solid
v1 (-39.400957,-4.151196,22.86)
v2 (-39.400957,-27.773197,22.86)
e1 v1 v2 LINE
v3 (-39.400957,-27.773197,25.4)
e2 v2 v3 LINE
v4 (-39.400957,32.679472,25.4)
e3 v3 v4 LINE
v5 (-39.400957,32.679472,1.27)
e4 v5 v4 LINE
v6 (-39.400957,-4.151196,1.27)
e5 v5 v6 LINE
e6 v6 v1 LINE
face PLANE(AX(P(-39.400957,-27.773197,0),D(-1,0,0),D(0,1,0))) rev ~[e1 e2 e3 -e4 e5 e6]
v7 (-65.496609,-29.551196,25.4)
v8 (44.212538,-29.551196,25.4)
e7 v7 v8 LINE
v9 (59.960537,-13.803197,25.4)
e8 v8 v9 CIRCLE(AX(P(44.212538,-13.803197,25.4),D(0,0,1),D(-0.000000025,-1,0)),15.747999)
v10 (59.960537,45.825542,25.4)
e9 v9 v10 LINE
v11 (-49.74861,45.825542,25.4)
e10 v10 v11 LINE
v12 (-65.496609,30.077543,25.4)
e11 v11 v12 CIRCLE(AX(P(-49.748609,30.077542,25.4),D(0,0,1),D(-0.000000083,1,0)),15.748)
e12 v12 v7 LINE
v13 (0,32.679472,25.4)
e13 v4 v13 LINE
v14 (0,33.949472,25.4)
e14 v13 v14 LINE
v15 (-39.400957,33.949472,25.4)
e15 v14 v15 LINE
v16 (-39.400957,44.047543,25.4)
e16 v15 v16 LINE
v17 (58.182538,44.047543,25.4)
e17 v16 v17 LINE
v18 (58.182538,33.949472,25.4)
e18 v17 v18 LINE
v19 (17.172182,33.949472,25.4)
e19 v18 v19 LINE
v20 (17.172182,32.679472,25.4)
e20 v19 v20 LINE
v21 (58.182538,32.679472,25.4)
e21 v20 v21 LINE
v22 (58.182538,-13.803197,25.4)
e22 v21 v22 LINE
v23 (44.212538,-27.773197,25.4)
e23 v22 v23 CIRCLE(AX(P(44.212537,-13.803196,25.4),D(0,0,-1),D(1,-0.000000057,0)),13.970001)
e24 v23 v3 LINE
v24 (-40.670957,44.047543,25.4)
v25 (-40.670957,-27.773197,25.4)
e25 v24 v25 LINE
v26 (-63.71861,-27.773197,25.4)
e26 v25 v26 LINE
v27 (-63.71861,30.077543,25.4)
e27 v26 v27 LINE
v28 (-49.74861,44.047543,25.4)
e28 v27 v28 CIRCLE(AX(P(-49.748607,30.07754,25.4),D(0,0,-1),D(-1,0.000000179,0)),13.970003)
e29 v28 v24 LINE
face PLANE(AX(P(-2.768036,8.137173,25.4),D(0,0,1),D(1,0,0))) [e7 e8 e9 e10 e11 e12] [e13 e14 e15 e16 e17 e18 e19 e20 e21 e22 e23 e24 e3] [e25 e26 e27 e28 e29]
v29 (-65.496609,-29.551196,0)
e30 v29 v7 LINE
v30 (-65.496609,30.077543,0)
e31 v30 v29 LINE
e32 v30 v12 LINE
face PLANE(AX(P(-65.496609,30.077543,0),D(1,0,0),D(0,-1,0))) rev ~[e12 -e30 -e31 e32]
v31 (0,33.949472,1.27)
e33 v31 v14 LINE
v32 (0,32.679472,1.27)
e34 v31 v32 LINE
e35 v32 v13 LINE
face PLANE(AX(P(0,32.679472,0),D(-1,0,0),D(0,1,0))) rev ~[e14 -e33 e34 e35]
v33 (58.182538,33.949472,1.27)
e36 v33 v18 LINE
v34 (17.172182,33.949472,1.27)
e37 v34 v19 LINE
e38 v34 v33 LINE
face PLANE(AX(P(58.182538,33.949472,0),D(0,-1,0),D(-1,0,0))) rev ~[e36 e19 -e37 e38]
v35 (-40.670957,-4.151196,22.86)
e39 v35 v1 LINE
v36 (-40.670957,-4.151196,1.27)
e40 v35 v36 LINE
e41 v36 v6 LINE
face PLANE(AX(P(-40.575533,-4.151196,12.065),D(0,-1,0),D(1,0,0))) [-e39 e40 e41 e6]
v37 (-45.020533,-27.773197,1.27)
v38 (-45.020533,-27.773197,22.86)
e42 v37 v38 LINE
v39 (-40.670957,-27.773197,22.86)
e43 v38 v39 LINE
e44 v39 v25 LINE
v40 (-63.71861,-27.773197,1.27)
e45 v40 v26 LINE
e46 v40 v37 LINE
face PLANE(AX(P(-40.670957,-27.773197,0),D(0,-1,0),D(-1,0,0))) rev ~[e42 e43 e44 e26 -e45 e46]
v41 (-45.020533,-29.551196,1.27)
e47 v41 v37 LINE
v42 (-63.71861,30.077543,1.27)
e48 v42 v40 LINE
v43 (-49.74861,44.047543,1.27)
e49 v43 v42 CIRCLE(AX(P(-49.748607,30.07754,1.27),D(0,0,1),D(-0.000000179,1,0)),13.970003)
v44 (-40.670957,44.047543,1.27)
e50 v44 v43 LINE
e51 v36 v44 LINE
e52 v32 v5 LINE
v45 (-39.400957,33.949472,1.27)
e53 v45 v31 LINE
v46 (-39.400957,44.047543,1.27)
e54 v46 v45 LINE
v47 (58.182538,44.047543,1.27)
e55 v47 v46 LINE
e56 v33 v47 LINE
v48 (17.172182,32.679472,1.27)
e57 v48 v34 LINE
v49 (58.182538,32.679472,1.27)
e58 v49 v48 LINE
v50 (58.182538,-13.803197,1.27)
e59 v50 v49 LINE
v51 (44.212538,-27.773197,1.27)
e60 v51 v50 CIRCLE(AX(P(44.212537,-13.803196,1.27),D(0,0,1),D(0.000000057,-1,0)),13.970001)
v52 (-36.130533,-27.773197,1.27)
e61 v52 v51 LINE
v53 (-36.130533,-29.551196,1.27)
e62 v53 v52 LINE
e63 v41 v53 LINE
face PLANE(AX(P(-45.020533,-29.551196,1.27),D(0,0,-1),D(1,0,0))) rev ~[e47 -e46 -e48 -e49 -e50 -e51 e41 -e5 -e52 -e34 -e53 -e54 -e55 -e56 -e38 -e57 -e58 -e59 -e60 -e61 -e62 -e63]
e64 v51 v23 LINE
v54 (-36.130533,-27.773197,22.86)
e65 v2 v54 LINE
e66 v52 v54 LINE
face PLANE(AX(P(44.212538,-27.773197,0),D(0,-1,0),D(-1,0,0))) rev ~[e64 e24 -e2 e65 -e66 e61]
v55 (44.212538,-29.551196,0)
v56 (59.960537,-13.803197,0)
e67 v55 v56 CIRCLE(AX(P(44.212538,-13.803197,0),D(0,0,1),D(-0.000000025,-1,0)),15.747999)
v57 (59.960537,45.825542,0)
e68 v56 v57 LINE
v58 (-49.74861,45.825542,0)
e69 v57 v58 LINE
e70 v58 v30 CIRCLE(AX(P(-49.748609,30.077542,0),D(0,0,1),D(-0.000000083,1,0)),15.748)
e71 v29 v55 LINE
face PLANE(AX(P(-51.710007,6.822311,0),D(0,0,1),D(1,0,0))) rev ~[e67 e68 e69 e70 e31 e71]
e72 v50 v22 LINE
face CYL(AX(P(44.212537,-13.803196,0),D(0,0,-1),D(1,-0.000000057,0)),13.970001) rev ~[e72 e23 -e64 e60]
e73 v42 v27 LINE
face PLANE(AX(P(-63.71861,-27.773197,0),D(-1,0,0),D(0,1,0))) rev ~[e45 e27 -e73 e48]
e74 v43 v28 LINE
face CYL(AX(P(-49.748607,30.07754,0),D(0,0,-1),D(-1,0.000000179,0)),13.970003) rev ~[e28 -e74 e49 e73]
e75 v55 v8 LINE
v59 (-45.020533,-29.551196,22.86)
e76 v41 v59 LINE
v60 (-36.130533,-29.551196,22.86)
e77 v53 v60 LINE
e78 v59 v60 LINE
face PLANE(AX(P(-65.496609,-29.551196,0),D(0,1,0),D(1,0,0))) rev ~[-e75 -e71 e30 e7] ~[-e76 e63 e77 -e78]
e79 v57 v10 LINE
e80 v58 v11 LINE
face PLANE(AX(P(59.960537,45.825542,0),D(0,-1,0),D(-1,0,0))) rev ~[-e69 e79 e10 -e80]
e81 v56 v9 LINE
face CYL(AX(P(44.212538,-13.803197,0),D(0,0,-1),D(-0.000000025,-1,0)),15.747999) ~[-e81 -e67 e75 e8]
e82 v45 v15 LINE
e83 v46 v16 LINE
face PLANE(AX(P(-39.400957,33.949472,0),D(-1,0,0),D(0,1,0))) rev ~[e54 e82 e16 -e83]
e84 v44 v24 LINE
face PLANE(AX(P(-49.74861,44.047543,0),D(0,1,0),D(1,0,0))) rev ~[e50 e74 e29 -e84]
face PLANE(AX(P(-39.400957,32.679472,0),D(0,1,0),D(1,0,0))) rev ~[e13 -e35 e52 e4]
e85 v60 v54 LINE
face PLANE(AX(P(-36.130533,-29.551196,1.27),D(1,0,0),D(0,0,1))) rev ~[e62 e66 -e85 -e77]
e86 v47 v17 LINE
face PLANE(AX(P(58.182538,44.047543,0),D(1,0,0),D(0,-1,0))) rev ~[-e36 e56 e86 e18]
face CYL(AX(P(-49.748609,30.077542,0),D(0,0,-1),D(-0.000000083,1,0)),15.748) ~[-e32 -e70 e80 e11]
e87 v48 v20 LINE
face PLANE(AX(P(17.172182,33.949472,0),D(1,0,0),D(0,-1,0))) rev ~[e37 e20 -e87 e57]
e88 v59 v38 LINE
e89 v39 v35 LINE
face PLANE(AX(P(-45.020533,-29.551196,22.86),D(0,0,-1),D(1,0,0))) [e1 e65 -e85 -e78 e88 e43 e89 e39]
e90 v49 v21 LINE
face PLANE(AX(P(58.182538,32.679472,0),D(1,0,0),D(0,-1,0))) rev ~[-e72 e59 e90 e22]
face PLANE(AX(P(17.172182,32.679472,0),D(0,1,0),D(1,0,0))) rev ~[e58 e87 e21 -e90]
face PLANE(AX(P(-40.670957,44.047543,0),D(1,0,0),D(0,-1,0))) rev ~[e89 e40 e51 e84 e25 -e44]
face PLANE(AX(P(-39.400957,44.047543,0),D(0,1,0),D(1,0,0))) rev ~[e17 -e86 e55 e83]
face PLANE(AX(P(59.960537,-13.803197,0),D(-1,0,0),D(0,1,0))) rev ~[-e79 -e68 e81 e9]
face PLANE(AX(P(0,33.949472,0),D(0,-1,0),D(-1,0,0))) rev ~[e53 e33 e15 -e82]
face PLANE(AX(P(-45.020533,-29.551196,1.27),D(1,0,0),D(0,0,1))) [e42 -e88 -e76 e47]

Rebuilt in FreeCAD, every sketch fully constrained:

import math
import FreeCAD as App
import Part
import Sketcher
Q = App.Units.Quantity


def add_polygon(sketch, points):
    """Adds a closed chain of lines whose ends are joined by coincident constraints."""
    first, n = sketch.GeometryCount, len(points)
    for a, b in zip(points, points[1:] + points[:1]):
        sketch.addGeometry(Part.LineSegment(App.Vector(*a, 0), App.Vector(*b, 0)), False)
    for i in range(n):
        sketch.addConstraint(Sketcher.Constraint("Coincident", first + i, 2, first + (i + 1) % n, 1))

doc = App.newDocument("Part")
body = doc.addObject("PartDesign::Body", "Body")

sketch1 = body.newObject("Sketcher::SketchObject", "Sketch")
sketch1.AttachmentSupport = (doc.getObject("XY_Plane"), [""])
sketch1.MapMode = "FlatFace"
sketch1.addGeometry(Part.LineSegment(App.Vector(60, 45.8, 0), App.Vector(-49.7, 45.8, 0)), False)
sketch1.addGeometry(Part.ArcOfCircle(Part.Circle(App.Vector(-49.7, 30.1, 0), App.Vector(0, 0, 1), 15.7), math.radians(90), math.radians(180)), False)
sketch1.addGeometry(Part.LineSegment(App.Vector(-65.5, 30.1, 0), App.Vector(-65.5, -29.6, 0)), False)
sketch1.addGeometry(Part.LineSegment(App.Vector(-65.5, -29.6, 0), App.Vector(44.2, -29.6, 0)), False)
sketch1.addGeometry(Part.ArcOfCircle(Part.Circle(App.Vector(44.2, -13.8, 0), App.Vector(0, 0, 1), 15.7), math.radians(-90), math.radians(0)), False)
sketch1.addGeometry(Part.LineSegment(App.Vector(60, -13.8, 0), App.Vector(60, 45.8, 0)), False)
sketch1.addGeometry(Part.LineSegment(App.Vector(-63.7, -27.8, 0), App.Vector(-63.7, 30.1, 0)), False)
sketch1.addGeometry(Part.ArcOfCircle(Part.Circle(App.Vector(-49.7, 30.1, 0), App.Vector(0, 0, 1), 14), math.radians(90), math.radians(180)), False)
sketch1.addGeometry(Part.LineSegment(App.Vector(-49.7, 44, 0), App.Vector(-40.7, 44, 0)), False)
sketch1.addGeometry(Part.LineSegment(App.Vector(-40.7, 44, 0), App.Vector(-40.7, -27.8, 0)), False)
sketch1.addGeometry(Part.LineSegment(App.Vector(-40.7, -27.8, 0), App.Vector(-63.7, -27.8, 0)), False)
sketch1.addGeometry(Part.LineSegment(App.Vector(-39.4, 33.9, 0), App.Vector(-39.4, 44, 0)), False)
sketch1.addGeometry(Part.LineSegment(App.Vector(-39.4, 44, 0), App.Vector(58.2, 44, 0)), False)
sketch1.addGeometry(Part.LineSegment(App.Vector(58.2, 44, 0), App.Vector(58.2, 33.9, 0)), False)
sketch1.addGeometry(Part.LineSegment(App.Vector(58.2, 33.9, 0), App.Vector(17.2, 33.9, 0)), False)
sketch1.addGeometry(Part.LineSegment(App.Vector(17.2, 33.9, 0), App.Vector(17.2, 32.7, 0)), False)
sketch1.addGeometry(Part.LineSegment(App.Vector(17.2, 32.7, 0), App.Vector(58.2, 32.7, 0)), False)
sketch1.addGeometry(Part.LineSegment(App.Vector(58.2, 32.7, 0), App.Vector(58.2, -13.8, 0)), False)
sketch1.addGeometry(Part.ArcOfCircle(Part.Circle(App.Vector(44.2, -13.8, 0), App.Vector(0, 0, 1), 14), math.radians(-90), math.radians(0)), False)
sketch1.addGeometry(Part.LineSegment(App.Vector(44.2, -27.8, 0), App.Vector(-39.4, -27.8, 0)), False)
sketch1.addGeometry(Part.LineSegment(App.Vector(-39.4, -27.8, 0), App.Vector(-39.4, 32.7, 0)), False)
sketch1.addGeometry(Part.LineSegment(App.Vector(-39.4, 32.7, 0), App.Vector(0, 32.7, 0)), False)
sketch1.addGeometry(Part.LineSegment(App.Vector(0, 32.7, 0), App.Vector(0, 33.9, 0)), False)
sketch1.addGeometry(Part.LineSegment(App.Vector(0, 33.9, 0), App.Vector(-39.4, 33.9, 0)), False)
sketch1.addConstraint(Sketcher.Constraint("Tangent", 0, 2, 1, 1))
sketch1.addConstraint(Sketcher.Constraint("Tangent", 1, 2, 2, 1))
sketch1.addConstraint(Sketcher.Constraint("Coincident", 2, 2, 3, 1))
sketch1.addConstraint(Sketcher.Constraint("Tangent", 3, 2, 4, 1))
sketch1.addConstraint(Sketcher.Constraint("Tangent", 4, 2, 5, 1))
sketch1.addConstraint(Sketcher.Constraint("Coincident", 5, 2, 0, 1))
sketch1.addConstraint(Sketcher.Constraint("Tangent", 6, 2, 7, 2))
sketch1.addConstraint(Sketcher.Constraint("Tangent", 7, 1, 8, 1))
sketch1.addConstraint(Sketcher.Constraint("Coincident", 8, 2, 9, 1))
sketch1.addConstraint(Sketcher.Constraint("Coincident", 9, 2, 10, 1))
sketch1.addConstraint(Sketcher.Constraint("Coincident", 10, 2, 6, 1))
sketch1.addConstraint(Sketcher.Constraint("Coincident", 11, 2, 12, 1))
sketch1.addConstraint(Sketcher.Constraint("Coincident", 12, 2, 13, 1))
sketch1.addConstraint(Sketcher.Constraint("Coincident", 13, 2, 14, 1))
sketch1.addConstraint(Sketcher.Constraint("Coincident", 14, 2, 15, 1))
sketch1.addConstraint(Sketcher.Constraint("Coincident", 15, 2, 16, 1))
sketch1.addConstraint(Sketcher.Constraint("Coincident", 16, 2, 17, 1))
sketch1.addConstraint(Sketcher.Constraint("Tangent", 17, 2, 18, 2))
sketch1.addConstraint(Sketcher.Constraint("Tangent", 18, 1, 19, 1))
sketch1.addConstraint(Sketcher.Constraint("Coincident", 19, 2, 20, 1))
sketch1.addConstraint(Sketcher.Constraint("Coincident", 20, 2, 21, 1))
sketch1.addConstraint(Sketcher.Constraint("Coincident", 21, 2, 22, 1))
sketch1.addConstraint(Sketcher.Constraint("Coincident", 22, 2, 23, 1))
sketch1.addConstraint(Sketcher.Constraint("Coincident", 23, 2, 11, 1))
sketch1.addConstraint(Sketcher.Constraint("Horizontal", 0))
sketch1.addConstraint(Sketcher.Constraint("Vertical", 2))
sketch1.addConstraint(Sketcher.Constraint("Horizontal", 3))
sketch1.addConstraint(Sketcher.Constraint("Vertical", 5))
sketch1.addConstraint(Sketcher.Constraint("Vertical", 6))
sketch1.addConstraint(Sketcher.Constraint("Horizontal", 8))
sketch1.addConstraint(Sketcher.Constraint("Vertical", 9))
sketch1.addConstraint(Sketcher.Constraint("Horizontal", 10))
sketch1.addConstraint(Sketcher.Constraint("Vertical", 11))
sketch1.addConstraint(Sketcher.Constraint("Horizontal", 12))
sketch1.addConstraint(Sketcher.Constraint("Vertical", 13))
sketch1.addConstraint(Sketcher.Constraint("Horizontal", 14))
sketch1.addConstraint(Sketcher.Constraint("Vertical", 15))
sketch1.addConstraint(Sketcher.Constraint("Horizontal", 16))
sketch1.addConstraint(Sketcher.Constraint("Vertical", 17))
sketch1.addConstraint(Sketcher.Constraint("Horizontal", 19))
sketch1.addConstraint(Sketcher.Constraint("Vertical", 20))
sketch1.addConstraint(Sketcher.Constraint("Horizontal", 21))
sketch1.addConstraint(Sketcher.Constraint("Vertical", 22))
sketch1.addConstraint(Sketcher.Constraint("Horizontal", 23))
sketch1.addConstraint(Sketcher.Constraint("Coincident", 7, 3, 1, 3))
sketch1.addConstraint(Sketcher.Constraint("Coincident", 18, 3, 4, 3))
sketch1.addConstraint(Sketcher.Constraint("Equal", 1, 4))
sketch1.addConstraint(Sketcher.Constraint("Equal", 7, 18))
sketch1.addConstraint(Sketcher.Constraint("PointOnObject", 21, 2, -2))
sketch1.addConstraint(Sketcher.Constraint("Horizontal", 8, 2, 11, 2))
sketch1.addConstraint(Sketcher.Constraint("Horizontal", 10, 2, 18, 1))
sketch1.addConstraint(Sketcher.Constraint("Horizontal", 16, 2, 20, 2))
sketch1.addConstraint(Sketcher.Constraint("Horizontal", 14, 2, 22, 2))
sketch1.addConstraint(Sketcher.Constraint("Vertical", 13, 2, 16, 2))
sketch1.addConstraint(Sketcher.Constraint("Vertical", 11, 2, 19, 2))
sketch1.addConstraint(Sketcher.Constraint("Radius", 1, Q("0.62 in")))
sketch1.addConstraint(Sketcher.Constraint("Radius", 7, Q("0.5500001 in")))
sketch1.addConstraint(Sketcher.Constraint("DistanceY", 15, 2, 15, 1, Q("0.05 in")))
sketch1.addConstraint(Sketcher.Constraint("DistanceX", 8, 2, 11, 2, Q("0.05 in")))
sketch1.addConstraint(Sketcher.Constraint("DistanceY", 2, 2, 2, 1, 59.628739))
sketch1.addConstraint(Sketcher.Constraint("DistanceY", 11, 1, 11, 2, 10.098071))
sketch1.addConstraint(Sketcher.Constraint("DistanceX", 0, 2, 0, 1, 109.709147))
sketch1.addConstraint(Sketcher.Constraint("DistanceX", 8, 1, 8, 2, 9.077653))
sketch1.addConstraint(Sketcher.Constraint("DistanceX", 14, 2, 14, 1, 41.010356))
sketch1.addConstraint(Sketcher.Constraint("DistanceX", 21, 1, 21, 2, 39.400957))
sketch1.addConstraint(Sketcher.Constraint("DistanceY", -1, 1, 1, 3, 30.077542))
pad1 = body.newObject("PartDesign::Pad", "Pad")
pad1.Profile = sketch1
pad1.Length = Q("1 in")

sketch2 = body.newObject("Sketcher::SketchObject", "Sketch001")
sketch2.AttachmentSupport = (doc.getObject("XY_Plane"), [""])
sketch2.MapMode = "FlatFace"
sketch2.addGeometry(Part.LineSegment(App.Vector(-40.7, 44, 0), App.Vector(-49.7, 44, 0)), False)
sketch2.addGeometry(Part.ArcOfCircle(Part.Circle(App.Vector(-49.7, 30.1, 0), App.Vector(0, 0, 1), 14), math.radians(90), math.radians(180)), False)
sketch2.addGeometry(Part.LineSegment(App.Vector(-63.7, 30.1, 0), App.Vector(-63.7, -27.8, 0)), False)
sketch2.addGeometry(Part.LineSegment(App.Vector(-63.7, -27.8, 0), App.Vector(-40.7, -27.8, 0)), False)
sketch2.addGeometry(Part.LineSegment(App.Vector(-40.7, -27.8, 0), App.Vector(-40.7, 44, 0)), False)
sketch2.addGeometry(Part.LineSegment(App.Vector(58.2, 33.9, 0), App.Vector(58.2, 44, 0)), False)
sketch2.addGeometry(Part.LineSegment(App.Vector(58.2, 44, 0), App.Vector(-39.4, 44, 0)), False)
sketch2.addGeometry(Part.LineSegment(App.Vector(-39.4, 44, 0), App.Vector(-39.4, 33.9, 0)), False)
sketch2.addGeometry(Part.LineSegment(App.Vector(-39.4, 33.9, 0), App.Vector(0, 33.9, 0)), False)
sketch2.addGeometry(Part.LineSegment(App.Vector(0, 33.9, 0), App.Vector(0, 32.7, 0)), False)
sketch2.addGeometry(Part.LineSegment(App.Vector(0, 32.7, 0), App.Vector(-39.4, 32.7, 0)), False)
sketch2.addGeometry(Part.LineSegment(App.Vector(-39.4, 32.7, 0), App.Vector(-39.4, -27.8, 0)), False)
sketch2.addGeometry(Part.LineSegment(App.Vector(-39.4, -27.8, 0), App.Vector(44.2, -27.8, 0)), False)
sketch2.addGeometry(Part.ArcOfCircle(Part.Circle(App.Vector(44.2, -13.8, 0), App.Vector(0, 0, 1), 14), math.radians(-90), math.radians(0)), False)
sketch2.addGeometry(Part.LineSegment(App.Vector(58.2, -13.8, 0), App.Vector(58.2, 32.7, 0)), False)
sketch2.addGeometry(Part.LineSegment(App.Vector(58.2, 32.7, 0), App.Vector(17.2, 32.7, 0)), False)
sketch2.addGeometry(Part.LineSegment(App.Vector(17.2, 32.7, 0), App.Vector(17.2, 33.9, 0)), False)
sketch2.addGeometry(Part.LineSegment(App.Vector(17.2, 33.9, 0), App.Vector(58.2, 33.9, 0)), False)
sketch2.addConstraint(Sketcher.Constraint("Tangent", 0, 2, 1, 1))
sketch2.addConstraint(Sketcher.Constraint("Tangent", 1, 2, 2, 1))
sketch2.addConstraint(Sketcher.Constraint("Coincident", 2, 2, 3, 1))
sketch2.addConstraint(Sketcher.Constraint("Coincident", 3, 2, 4, 1))
sketch2.addConstraint(Sketcher.Constraint("Coincident", 4, 2, 0, 1))
sketch2.addConstraint(Sketcher.Constraint("Coincident", 5, 2, 6, 1))
sketch2.addConstraint(Sketcher.Constraint("Coincident", 6, 2, 7, 1))
sketch2.addConstraint(Sketcher.Constraint("Coincident", 7, 2, 8, 1))
sketch2.addConstraint(Sketcher.Constraint("Coincident", 8, 2, 9, 1))
sketch2.addConstraint(Sketcher.Constraint("Coincident", 9, 2, 10, 1))
sketch2.addConstraint(Sketcher.Constraint("Coincident", 10, 2, 11, 1))
sketch2.addConstraint(Sketcher.Constraint("Coincident", 11, 2, 12, 1))
sketch2.addConstraint(Sketcher.Constraint("Tangent", 12, 2, 13, 1))
sketch2.addConstraint(Sketcher.Constraint("Tangent", 13, 2, 14, 1))
sketch2.addConstraint(Sketcher.Constraint("Coincident", 14, 2, 15, 1))
sketch2.addConstraint(Sketcher.Constraint("Coincident", 15, 2, 16, 1))
sketch2.addConstraint(Sketcher.Constraint("Coincident", 16, 2, 17, 1))
sketch2.addConstraint(Sketcher.Constraint("Coincident", 17, 2, 5, 1))
sketch2.addConstraint(Sketcher.Constraint("Horizontal", 0))
sketch2.addConstraint(Sketcher.Constraint("Vertical", 2))
sketch2.addConstraint(Sketcher.Constraint("Horizontal", 3))
sketch2.addConstraint(Sketcher.Constraint("Vertical", 4))
sketch2.addConstraint(Sketcher.Constraint("Vertical", 5))
sketch2.addConstraint(Sketcher.Constraint("Horizontal", 6))
sketch2.addConstraint(Sketcher.Constraint("Vertical", 7))
sketch2.addConstraint(Sketcher.Constraint("Horizontal", 8))
sketch2.addConstraint(Sketcher.Constraint("Vertical", 9))
sketch2.addConstraint(Sketcher.Constraint("Horizontal", 10))
sketch2.addConstraint(Sketcher.Constraint("Vertical", 11))
sketch2.addConstraint(Sketcher.Constraint("Horizontal", 12))
sketch2.addConstraint(Sketcher.Constraint("Vertical", 14))
sketch2.addConstraint(Sketcher.Constraint("Horizontal", 15))
sketch2.addConstraint(Sketcher.Constraint("Vertical", 16))
sketch2.addConstraint(Sketcher.Constraint("Horizontal", 17))
sketch2.addConstraint(Sketcher.Constraint("Equal", 1, 13))
sketch2.addConstraint(Sketcher.Constraint("PointOnObject", 8, 2, -2))
sketch2.addConstraint(Sketcher.Constraint("Horizontal", 4, 2, 5, 2))
sketch2.addConstraint(Sketcher.Constraint("Horizontal", 3, 2, 11, 2))
sketch2.addConstraint(Sketcher.Constraint("Horizontal", 10, 2, 14, 2))
sketch2.addConstraint(Sketcher.Constraint("Horizontal", 8, 2, 16, 2))
sketch2.addConstraint(Sketcher.Constraint("Vertical", 7, 2, 10, 2))
sketch2.addConstraint(Sketcher.Constraint("Vertical", 5, 2, 13, 2))
sketch2.addConstraint(Sketcher.Constraint("Radius", 1, Q("0.5500001 in")))
sketch2.addConstraint(Sketcher.Constraint("DistanceY", 9, 2, 9, 1, Q("0.05 in")))
sketch2.addConstraint(Sketcher.Constraint("DistanceX", 4, 2, 6, 2, Q("0.05 in")))
sketch2.addConstraint(Sketcher.Constraint("DistanceY", 2, 2, 2, 1, 57.85074))
sketch2.addConstraint(Sketcher.Constraint("DistanceY", 5, 1, 5, 2, 10.098071))
sketch2.addConstraint(Sketcher.Constraint("DistanceX", 0, 2, 0, 1, 9.077653))
sketch2.addConstraint(Sketcher.Constraint("DistanceX", 6, 2, 6, 1, 97.583495))
sketch2.addConstraint(Sketcher.Constraint("DistanceX", 8, 1, 8, 2, 39.400957))
sketch2.addConstraint(Sketcher.Constraint("DistanceX", 15, 2, 15, 1, 41.010356))
sketch2.addConstraint(Sketcher.Constraint("DistanceY", -1, 1, 1, 3, 30.07754))
pad2 = body.newObject("PartDesign::Pad", "Pad001")
pad2.Profile = sketch2
pad2.Length = Q("0.05 in")

sketch3 = body.newObject("Sketcher::SketchObject", "Sketch002")
sketch3.AttachmentSupport = (doc.getObject("XZ_Plane"), [""])
sketch3.MapMode = "FlatFace"
sketch3.AttachmentOffset = App.Placement(App.Vector(0, 0, 29.551196), App.Rotation())
add_polygon(sketch3, [(-45, 23), (-45, 1), (-36, 1), (-36, 23)])
sketch3.addConstraint(Sketcher.Constraint("Vertical", 0))
sketch3.addConstraint(Sketcher.Constraint("Horizontal", 1))
sketch3.addConstraint(Sketcher.Constraint("Vertical", 2))
sketch3.addConstraint(Sketcher.Constraint("Horizontal", 3))
sketch3.addConstraint(Sketcher.Constraint("DistanceX", 1, 1, 1, 2, Q("0.35 in")))
sketch3.addConstraint(Sketcher.Constraint("DistanceY", 0, 2, 0, 1, Q("0.85 in")))
sketch3.addConstraint(Sketcher.Constraint("DistanceY", -1, 1, 2, 2, Q("0.9 in")))
sketch3.addConstraint(Sketcher.Constraint("DistanceX", 0, 2, -1, 1, 45.020533))
pocket1 = body.newObject("PartDesign::Pocket", "Pocket")
pocket1.Profile = sketch3
pocket1.Length = Q("1 in")

doc.recompute()
